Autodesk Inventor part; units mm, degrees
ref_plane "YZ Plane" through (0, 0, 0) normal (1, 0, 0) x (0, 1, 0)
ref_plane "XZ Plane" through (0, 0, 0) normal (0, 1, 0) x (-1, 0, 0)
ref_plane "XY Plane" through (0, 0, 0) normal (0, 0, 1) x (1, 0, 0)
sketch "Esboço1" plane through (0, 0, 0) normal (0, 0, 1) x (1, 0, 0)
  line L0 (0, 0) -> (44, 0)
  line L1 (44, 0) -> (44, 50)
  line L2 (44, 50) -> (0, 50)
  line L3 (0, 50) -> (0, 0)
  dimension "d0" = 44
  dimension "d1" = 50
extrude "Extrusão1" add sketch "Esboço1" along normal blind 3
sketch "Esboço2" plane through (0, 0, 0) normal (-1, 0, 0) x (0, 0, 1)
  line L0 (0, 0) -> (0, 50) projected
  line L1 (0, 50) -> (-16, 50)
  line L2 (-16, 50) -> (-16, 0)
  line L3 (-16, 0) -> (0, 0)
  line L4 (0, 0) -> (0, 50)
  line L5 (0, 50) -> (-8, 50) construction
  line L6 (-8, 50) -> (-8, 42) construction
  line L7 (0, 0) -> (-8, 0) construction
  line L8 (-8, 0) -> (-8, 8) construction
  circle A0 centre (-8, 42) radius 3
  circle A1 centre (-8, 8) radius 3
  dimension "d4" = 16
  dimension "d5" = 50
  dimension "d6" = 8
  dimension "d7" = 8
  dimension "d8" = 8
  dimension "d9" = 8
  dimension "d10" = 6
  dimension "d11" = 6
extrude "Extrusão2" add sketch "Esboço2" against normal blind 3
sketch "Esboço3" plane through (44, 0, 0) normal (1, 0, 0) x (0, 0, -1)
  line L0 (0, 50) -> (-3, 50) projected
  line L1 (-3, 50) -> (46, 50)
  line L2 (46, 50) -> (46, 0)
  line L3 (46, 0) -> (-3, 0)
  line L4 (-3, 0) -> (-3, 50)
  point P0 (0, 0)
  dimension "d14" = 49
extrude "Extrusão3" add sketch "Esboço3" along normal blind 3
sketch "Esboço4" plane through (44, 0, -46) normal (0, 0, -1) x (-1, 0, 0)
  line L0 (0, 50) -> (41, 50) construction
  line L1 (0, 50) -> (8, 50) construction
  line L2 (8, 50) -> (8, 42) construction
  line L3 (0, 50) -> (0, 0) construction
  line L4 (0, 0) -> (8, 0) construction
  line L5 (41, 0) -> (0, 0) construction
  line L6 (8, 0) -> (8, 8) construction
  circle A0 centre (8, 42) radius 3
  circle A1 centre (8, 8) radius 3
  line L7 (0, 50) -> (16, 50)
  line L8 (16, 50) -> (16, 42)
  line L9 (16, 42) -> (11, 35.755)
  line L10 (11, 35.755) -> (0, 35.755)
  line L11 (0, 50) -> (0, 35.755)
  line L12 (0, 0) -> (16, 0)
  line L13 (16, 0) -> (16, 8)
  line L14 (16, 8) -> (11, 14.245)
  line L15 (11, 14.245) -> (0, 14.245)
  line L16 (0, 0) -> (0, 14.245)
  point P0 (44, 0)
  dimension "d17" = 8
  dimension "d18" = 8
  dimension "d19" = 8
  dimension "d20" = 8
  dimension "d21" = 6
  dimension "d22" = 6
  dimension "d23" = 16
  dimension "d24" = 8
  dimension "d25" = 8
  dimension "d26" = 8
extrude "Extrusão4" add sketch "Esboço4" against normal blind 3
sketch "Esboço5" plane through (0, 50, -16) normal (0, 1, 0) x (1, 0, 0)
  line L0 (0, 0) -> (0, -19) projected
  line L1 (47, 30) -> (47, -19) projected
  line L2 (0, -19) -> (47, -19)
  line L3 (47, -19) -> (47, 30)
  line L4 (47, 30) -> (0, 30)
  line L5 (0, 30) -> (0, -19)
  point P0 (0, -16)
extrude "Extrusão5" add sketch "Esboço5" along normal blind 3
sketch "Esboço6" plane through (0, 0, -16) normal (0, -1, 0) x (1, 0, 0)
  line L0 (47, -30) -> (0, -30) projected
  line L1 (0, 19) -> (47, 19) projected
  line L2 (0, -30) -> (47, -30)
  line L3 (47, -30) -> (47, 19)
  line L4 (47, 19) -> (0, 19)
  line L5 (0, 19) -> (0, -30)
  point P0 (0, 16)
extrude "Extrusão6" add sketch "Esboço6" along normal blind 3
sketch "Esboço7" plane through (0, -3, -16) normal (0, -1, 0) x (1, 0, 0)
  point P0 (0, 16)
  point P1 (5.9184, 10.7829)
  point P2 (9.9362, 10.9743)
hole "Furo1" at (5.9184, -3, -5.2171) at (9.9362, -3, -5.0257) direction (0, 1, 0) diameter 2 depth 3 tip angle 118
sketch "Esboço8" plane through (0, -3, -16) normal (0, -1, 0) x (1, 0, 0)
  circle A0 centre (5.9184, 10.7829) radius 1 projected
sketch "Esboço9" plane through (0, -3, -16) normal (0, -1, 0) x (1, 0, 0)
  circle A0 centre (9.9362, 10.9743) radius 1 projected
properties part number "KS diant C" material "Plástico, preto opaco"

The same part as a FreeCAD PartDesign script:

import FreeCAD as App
import Part
import Sketcher


def add_polygon(sketch, points):
    """Adds a closed chain of lines whose ends are joined by coincident constraints."""
    first, n = sketch.GeometryCount, len(points)
    for a, b in zip(points, points[1:] + points[:1]):
        sketch.addGeometry(Part.LineSegment(App.Vector(*a, 0), App.Vector(*b, 0)), False)
    for i in range(n):
        sketch.addConstraint(Sketcher.Constraint("Coincident", first + i, 2, first + (i + 1) % n, 1))

doc = App.newDocument("Part")
body = doc.addObject("PartDesign::Body", "Body")

sketch1 = body.newObject("Sketcher::SketchObject", "Sketch")
sketch1.AttachmentSupport = (doc.getObject("XY_Plane"), [""])
sketch1.MapMode = "FlatFace"
add_polygon(sketch1, [(0, 50), (0, 0), (44, 0), (44, 50)])
sketch1.addConstraint([
    Sketcher.Constraint("Vertical", 0),
    Sketcher.Constraint("Horizontal", 1),
    Sketcher.Constraint("Vertical", 2),
    Sketcher.Constraint("Horizontal", 3),
    Sketcher.Constraint("Coincident", 0, 2, -1, 1),
    Sketcher.Constraint("DistanceX", 1, 1, 1, 2, 44.0),
    Sketcher.Constraint("DistanceY", 0, 2, 0, 1, 50.0),
])
pad1 = body.newObject("PartDesign::Pad", "Pad")
pad1.Profile = sketch1
pad1.Length = 3

sketch2 = body.newObject("Sketcher::SketchObject", "Sketch001")
sketch2.AttachmentSupport = (doc.getObject("YZ_Plane"), [""])
sketch2.MapMode = "FlatFace"
add_polygon(sketch2, [(0, -16), (0, 0), (50, 0), (50, -16)])
sketch2.addGeometry(Part.Circle(App.Vector(8, -8, 0), App.Vector(0, 0, 1), 3), False)
sketch2.addGeometry(Part.Circle(App.Vector(42, -8, 0), App.Vector(0, 0, 1), 3), False)
sketch2.addConstraint([
    Sketcher.Constraint("Vertical", 0),
    Sketcher.Constraint("Horizontal", 1),
    Sketcher.Constraint("Vertical", 2),
    Sketcher.Constraint("Horizontal", 3),
    Sketcher.Constraint("Coincident", 0, 2, -1, 1),
    Sketcher.Constraint("Equal", 4, 5),
    Sketcher.Constraint("Horizontal", 4, 3, 5, 3),
    Sketcher.Constraint("Diameter", 4, 6.0),
    Sketcher.Constraint("DistanceX", 1, 1, 1, 2, 50.0),
    Sketcher.Constraint("DistanceY", 0, 1, 0, 2, 16.0),
    Sketcher.Constraint("DistanceX", -1, 1, 4, 3, 8.0),
    Sketcher.Constraint("DistanceY", 4, 3, -1, 1, 8.0),
    Sketcher.Constraint("DistanceX", 5, 3, 1, 2, 8.0),
])
pad2 = body.newObject("PartDesign::Pad", "Pad001")
pad2.Profile = sketch2
pad2.Length = 3

sketch3 = body.newObject("Sketcher::SketchObject", "Sketch002")
sketch3.AttachmentSupport = (doc.getObject("YZ_Plane"), [""])
sketch3.MapMode = "FlatFace"
sketch3.AttachmentOffset = App.Placement(App.Vector(0, 0, 44), App.Rotation())
add_polygon(sketch3, [(50, -46), (50, 3), (0, 3), (0, -46)])
sketch3.addConstraint([
    Sketcher.Constraint("Vertical", 0),
    Sketcher.Constraint("Horizontal", 1),
    Sketcher.Constraint("Vertical", 2),
    Sketcher.Constraint("Horizontal", 3),
    Sketcher.Constraint("PointOnObject", 1, 2, -2),
    Sketcher.Constraint("DistanceY", 0, 1, 0, 2, 49.0),
    Sketcher.Constraint("DistanceX", 1, 2, 1, 1, 50.0),
    Sketcher.Constraint("DistanceY", -1, 1, 0, 2, 3.0),
])
pad3 = body.newObject("PartDesign::Pad", "Pad002")
pad3.Profile = sketch3
pad3.Length = 3

sketch4 = body.newObject("Sketcher::SketchObject", "Sketch003")
sketch4.AttachmentSupport = (doc.getObject("XY_Plane"), [""])
sketch4.MapMode = "FlatFace"
sketch4.AttachmentOffset = App.Placement(App.Vector(0, 0, -46), App.Rotation())
add_polygon(sketch4, [(28, 50), (44, 50), (44, 35.8), (33, 35.8), (28, 42)])
sketch4.addGeometry(Part.Circle(App.Vector(36, 42, 0), App.Vector(0, 0, 1), 3), False)
add_polygon(sketch4, [(44, 14.2), (44, 0), (28, 0), (28, 8), (33, 14.2)])
sketch4.addGeometry(Part.Circle(App.Vector(36, 8, 0), App.Vector(0, 0, 1), 3), False)
sketch4.addConstraint([
    Sketcher.Constraint("Horizontal", 0),
    Sketcher.Constraint("Vertical", 1),
    Sketcher.Constraint("Horizontal", 2),
    Sketcher.Constraint("Vertical", 4),
    Sketcher.Constraint("Vertical", 6),
    Sketcher.Constraint("Horizontal", 7),
    Sketcher.Constraint("Vertical", 8),
    Sketcher.Constraint("Horizontal", 10),
    Sketcher.Constraint("Equal", 5, 11),
    Sketcher.Constraint("PointOnObject", 6, 2, -1),
    Sketcher.Constraint("Horizontal", 5, 3, 3, 2),
    Sketcher.Constraint("Horizontal", 11, 3, 8, 2),
    Sketcher.Constraint("Vertical", 5, 3, 11, 3),
    Sketcher.Constraint("Vertical", 1, 2, 6, 2),
    Sketcher.Constraint("Vertical", 4, 2, 7, 2),
    Sketcher.Constraint("Vertical", 2, 2, 9, 2),
    Sketcher.Constraint("Equal", 1, 6),
    Sketcher.Constraint("Equal", 4, 8),
    Sketcher.Constraint("Diameter", 5, 6.0),
    Sketcher.Constraint("DistanceX", 0, 1, 0, 2, 16.0),
    Sketcher.Constraint("DistanceY", 4, 1, 4, 2, 8.0),
    Sketcher.Constraint("Distance", 3, 8.0),
    Sketcher.Constraint("DistanceX", 5, 3, 0, 2, 8.0),
    Sketcher.Constraint("DistanceX", 2, 2, 2, 1, 11.0),
    Sketcher.Constraint("DistanceX", -1, 1, 5, 3, 36.0),
    Sketcher.Constraint("DistanceY", -1, 1, 5, 3, 42.0),
])
pad4 = body.newObject("PartDesign::Pad", "Pad003")
pad4.Profile = sketch4
pad4.Length = 3

sketch5 = body.newObject("Sketcher::SketchObject", "Sketch004")
sketch5.AttachmentSupport = (doc.getObject("XZ_Plane"), [""])
sketch5.MapMode = "FlatFace"
sketch5.AttachmentOffset = App.Placement(App.Vector(0, 0, -50), App.Rotation())
add_polygon(sketch5, [(0, -46), (0, 3), (47, 3), (47, -46)])
sketch5.addConstraint([
    Sketcher.Constraint("Vertical", 0),
    Sketcher.Constraint("Horizontal", 1),
    Sketcher.Constraint("Vertical", 2),
    Sketcher.Constraint("Horizontal", 3),
    Sketcher.Constraint("PointOnObject", 0, 2, -2),
    Sketcher.Constraint("DistanceX", 1, 1, 1, 2, 47.0),
    Sketcher.Constraint("DistanceY", 0, 1, 0, 2, 49.0),
    Sketcher.Constraint("DistanceY", -1, 1, 0, 2, 3.0),
])
pad5 = body.newObject("PartDesign::Pad", "Pad004")
pad5.Profile = sketch5
pad5.Length = 3
pad5.Reversed = True

sketch6 = body.newObject("Sketcher::SketchObject", "Sketch005")
sketch6.AttachmentSupport = (doc.getObject("XZ_Plane"), [""])
sketch6.MapMode = "FlatFace"
add_polygon(sketch6, [(0, -46), (47, -46), (47, 3), (0, 3)])
sketch6.addConstraint([
    Sketcher.Constraint("Horizontal", 0),
    Sketcher.Constraint("Vertical", 1),
    Sketcher.Constraint("Horizontal", 2),
    Sketcher.Constraint("Vertical", 3),
    Sketcher.Constraint("PointOnObject", 2, 2, -2),
    Sketcher.Constraint("DistanceX", 0, 1, 0, 2, 47.0),
    Sketcher.Constraint("DistanceY", 1, 1, 1, 2, 49.0),
    Sketcher.Constraint("DistanceY", 0, 2, -1, 1, 46.0),
])
pad6 = body.newObject("PartDesign::Pad", "Pad005")
pad6.Profile = sketch6
pad6.Length = 3

sketch7 = body.newObject("Sketcher::SketchObject", "Sketch006")
sketch7.AttachmentSupport = (doc.getObject("XZ_Plane"), [""])
sketch7.MapMode = "FlatFace"
sketch7.AttachmentOffset = App.Placement(App.Vector(0, 0, 3), App.Rotation())
sketch7.addGeometry([
    Part.Circle(App.Vector(5.9, -5.2, 0), App.Vector(0, 0, 1), 1),
    Part.Circle(App.Vector(9.9, -5, 0), App.Vector(0, 0, 1), 1),
], False)
sketch7.addConstraint([
    Sketcher.Constraint("Equal", 0, 1),
    Sketcher.Constraint("Diameter", 0, 2.0),
    Sketcher.Constraint("DistanceY", 0, 3, -1, 1, 5.217),
    Sketcher.Constraint("DistanceX", -1, 1, 0, 3, 5.9184),
    Sketcher.Constraint("DistanceX", -1, 1, 1, 3, 9.9362),
    Sketcher.Constraint("DistanceY", 1, 3, -1, 1, 5.0257),
])
doc.recompute()
hole = body.newObject("PartDesign::Hole", "Hole")
hole.Profile = sketch7
hole.ThreadType = "None"
hole.Diameter = 2
hole.DepthType = "Dimension"
hole.Depth = 3
hole.DrillPoint = "Angled"
hole.DrillPointAngle = 118

doc.recompute()
